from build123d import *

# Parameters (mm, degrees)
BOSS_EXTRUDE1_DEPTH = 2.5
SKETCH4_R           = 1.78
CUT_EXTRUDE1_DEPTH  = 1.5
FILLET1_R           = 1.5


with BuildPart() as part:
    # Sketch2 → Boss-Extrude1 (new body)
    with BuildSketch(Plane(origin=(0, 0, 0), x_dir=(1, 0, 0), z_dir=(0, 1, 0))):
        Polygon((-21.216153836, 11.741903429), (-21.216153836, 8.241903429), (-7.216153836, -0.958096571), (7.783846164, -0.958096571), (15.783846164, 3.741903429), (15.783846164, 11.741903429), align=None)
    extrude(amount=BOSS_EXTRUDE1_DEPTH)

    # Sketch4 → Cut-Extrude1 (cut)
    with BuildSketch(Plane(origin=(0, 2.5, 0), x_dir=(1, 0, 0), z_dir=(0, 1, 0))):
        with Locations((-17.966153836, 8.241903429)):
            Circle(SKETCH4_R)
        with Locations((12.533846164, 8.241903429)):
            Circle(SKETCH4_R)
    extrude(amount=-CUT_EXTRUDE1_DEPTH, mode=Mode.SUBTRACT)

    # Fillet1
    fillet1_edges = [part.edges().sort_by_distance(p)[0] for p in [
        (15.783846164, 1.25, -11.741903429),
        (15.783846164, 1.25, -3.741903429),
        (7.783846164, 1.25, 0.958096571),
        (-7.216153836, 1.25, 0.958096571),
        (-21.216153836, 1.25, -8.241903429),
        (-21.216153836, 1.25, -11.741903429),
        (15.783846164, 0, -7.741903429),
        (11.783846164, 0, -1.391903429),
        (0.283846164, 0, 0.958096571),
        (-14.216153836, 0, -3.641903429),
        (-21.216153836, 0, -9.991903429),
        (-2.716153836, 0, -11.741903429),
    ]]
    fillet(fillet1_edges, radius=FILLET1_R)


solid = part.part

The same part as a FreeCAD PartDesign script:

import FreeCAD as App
import Part
import Sketcher
Q = App.Units.Quantity


def edges_at(feature, points):
    """Names of the edges that pass closest to the given points."""
    edges = feature.Shape.Edges
    near = lambda p: min(range(len(edges)), key=lambda i: edges[i].distToShape(Part.Vertex(*p))[0])
    return sorted({f"Edge{near(p) + 1}" for p in points})

doc = App.newDocument("Part")
params = doc.addObject("Spreadsheet::Sheet", "Params")
for row, (alias, value) in enumerate([
    ("sketch1_width", "15 mm"),
    ("sketch1_width2", "37 mm"),
    ("sketch1_height", "8 mm"),
    ("sketch1_height2", "3.5 mm"),
    ("pad1_length", "2.5 mm"),
    ("sketch2_diameter", "3.56 mm"),
    ("pocket1_length", "1.5 mm"),
    ("fillet_radius", "1.5 mm"),
], start=1):
    params.set(f"A{row}", alias)
    params.set(f"B{row}", "=" + value)
    params.setAlias(f"B{row}", alias)

body = doc.addObject("PartDesign::Body", "Body")

sketch1 = doc.addObject("Sketcher::SketchObject", "Sketch")
body.addObject(sketch1)
sketch1.AttachmentSupport = (doc.XZ_Plane, [""])
sketch1.MapMode = "FlatFace"
sketch1.addGeometry(Part.LineSegment(App.Vector(-21.2, -11.7, 0), App.Vector(-21.2, -8.2, 0)), False)
sketch1.addGeometry(Part.LineSegment(App.Vector(-21.2, -8.2, 0), App.Vector(-7.2, 1, 0)), False)
sketch1.addGeometry(Part.LineSegment(App.Vector(-7.2, 1, 0), App.Vector(7.8, 1, 0)), False)
sketch1.addGeometry(Part.LineSegment(App.Vector(7.8, 1, 0), App.Vector(15.8, -3.7, 0)), False)
sketch1.addGeometry(Part.LineSegment(App.Vector(15.8, -3.7, 0), App.Vector(15.8, -11.7, 0)), False)
sketch1.addGeometry(Part.LineSegment(App.Vector(15.8, -11.7, 0), App.Vector(-21.2, -11.7, 0)), False)
sketch1.addConstraint(Sketcher.Constraint("Coincident", 0, 2, 1, 1))
sketch1.addConstraint(Sketcher.Constraint("Coincident", 1, 2, 2, 1))
sketch1.addConstraint(Sketcher.Constraint("Coincident", 2, 2, 3, 1))
sketch1.addConstraint(Sketcher.Constraint("Coincident", 3, 2, 4, 1))
sketch1.addConstraint(Sketcher.Constraint("Coincident", 4, 2, 5, 1))
sketch1.addConstraint(Sketcher.Constraint("Coincident", 5, 2, 0, 1))
sketch1.addConstraint(Sketcher.Constraint("Vertical", 0))
sketch1.addConstraint(Sketcher.Constraint("Horizontal", 2))
sketch1.addConstraint(Sketcher.Constraint("Vertical", 4))
sketch1.addConstraint(Sketcher.Constraint("Horizontal", 5))
sketch1.addConstraint(Sketcher.Constraint("DistanceX", 2, 1, 2, 2, Q("15 mm")))
sketch1.addConstraint(Sketcher.Constraint("DistanceX", 5, 2, 5, 1, Q("37 mm")))
sketch1.addConstraint(Sketcher.Constraint("DistanceY", 4, 2, 4, 1, Q("8 mm")))
sketch1.addConstraint(Sketcher.Constraint("DistanceY", 0, 1, 0, 2, Q("3.5 mm")))
sketch1.addConstraint(Sketcher.Constraint("DistanceX", 0, 2, 1, 2, Q("14 mm")))
sketch1.addConstraint(Sketcher.Constraint("DistanceY", 0, 2, 1, 2, Q("9.2 mm")))
sketch1.addConstraint(Sketcher.Constraint("DistanceX", 0, 2, -1, 1, Q("21.216154 mm")))
sketch1.addConstraint(Sketcher.Constraint("DistanceY", 0, 2, -1, 1, Q("8.241903 mm")))
sketch1.setExpression("Constraints[10]", "Params.sketch1_width")
sketch1.setExpression("Constraints[11]", "Params.sketch1_width2")
sketch1.setExpression("Constraints[12]", "Params.sketch1_height")
sketch1.setExpression("Constraints[13]", "Params.sketch1_height2")
pad1 = doc.addObject("PartDesign::Pad", "Pad")
body.addObject(pad1)
pad1.Profile = sketch1
pad1.setExpression("Length", "Params.pad1_length")
pad1.Reversed = True

sketch2 = doc.addObject("Sketcher::SketchObject", "Sketch001")
body.addObject(sketch2)
sketch2.AttachmentSupport = (doc.XZ_Plane, [""])
sketch2.MapMode = "FlatFace"
sketch2.AttachmentOffset = App.Placement(App.Vector(0, 0, -2.5), App.Rotation())
sketch2.addGeometry(Part.Circle(App.Vector(-18, -8.2, 0), App.Vector(0, 0, 1), 1.8), False)
sketch2.addGeometry(Part.Circle(App.Vector(12.5, -8.2, 0), App.Vector(0, 0, 1), 1.8), False)
sketch2.addConstraint(Sketcher.Constraint("Equal", 0, 1))
sketch2.addConstraint(Sketcher.Constraint("Horizontal", 0, 3, 1, 3))
sketch2.addConstraint(Sketcher.Constraint("Diameter", 0, Q("3.56 mm")))
sketch2.addConstraint(Sketcher.Constraint("DistanceX", 0, 3, 1, 3, Q("30.5 mm")))
sketch2.addConstraint(Sketcher.Constraint("DistanceX", 0, 3, -1, 1, Q("17.966154 mm")))
sketch2.addConstraint(Sketcher.Constraint("DistanceY", 0, 3, -1, 1, Q("8.241903 mm")))
sketch2.setExpression("Constraints[2]", "Params.sketch2_diameter")
pocket1 = doc.addObject("PartDesign::Pocket", "Pocket")
body.addObject(pocket1)
pocket1.Profile = sketch2
pocket1.setExpression("Length", "Params.pocket1_length")
pocket1.Reversed = True
doc.recompute()

fillet = doc.addObject("PartDesign::Fillet", "Fillet")
body.addObject(fillet)
fillet.Base = (pocket1, edges_at(pocket1, [
    (15.784, 1.25, -11.742),
    (15.784, 1.25, -3.742),
    (7.784, 1.25, 0.958),
    (-7.216, 1.25, 0.958),
    (-21.216, 1.25, -8.242),
    (-21.216, 1.25, -11.742),
    (15.784, 0, -7.742),
    (11.784, 0, -1.392),
    (0.284, 0, 0.958),
    (-14.216, 0, -3.642),
    (-21.216, 0, -9.992),
    (-2.716, 0, -11.742),
]))
fillet.setExpression("Radius", "Params.fillet_radius")

doc.recompute()
